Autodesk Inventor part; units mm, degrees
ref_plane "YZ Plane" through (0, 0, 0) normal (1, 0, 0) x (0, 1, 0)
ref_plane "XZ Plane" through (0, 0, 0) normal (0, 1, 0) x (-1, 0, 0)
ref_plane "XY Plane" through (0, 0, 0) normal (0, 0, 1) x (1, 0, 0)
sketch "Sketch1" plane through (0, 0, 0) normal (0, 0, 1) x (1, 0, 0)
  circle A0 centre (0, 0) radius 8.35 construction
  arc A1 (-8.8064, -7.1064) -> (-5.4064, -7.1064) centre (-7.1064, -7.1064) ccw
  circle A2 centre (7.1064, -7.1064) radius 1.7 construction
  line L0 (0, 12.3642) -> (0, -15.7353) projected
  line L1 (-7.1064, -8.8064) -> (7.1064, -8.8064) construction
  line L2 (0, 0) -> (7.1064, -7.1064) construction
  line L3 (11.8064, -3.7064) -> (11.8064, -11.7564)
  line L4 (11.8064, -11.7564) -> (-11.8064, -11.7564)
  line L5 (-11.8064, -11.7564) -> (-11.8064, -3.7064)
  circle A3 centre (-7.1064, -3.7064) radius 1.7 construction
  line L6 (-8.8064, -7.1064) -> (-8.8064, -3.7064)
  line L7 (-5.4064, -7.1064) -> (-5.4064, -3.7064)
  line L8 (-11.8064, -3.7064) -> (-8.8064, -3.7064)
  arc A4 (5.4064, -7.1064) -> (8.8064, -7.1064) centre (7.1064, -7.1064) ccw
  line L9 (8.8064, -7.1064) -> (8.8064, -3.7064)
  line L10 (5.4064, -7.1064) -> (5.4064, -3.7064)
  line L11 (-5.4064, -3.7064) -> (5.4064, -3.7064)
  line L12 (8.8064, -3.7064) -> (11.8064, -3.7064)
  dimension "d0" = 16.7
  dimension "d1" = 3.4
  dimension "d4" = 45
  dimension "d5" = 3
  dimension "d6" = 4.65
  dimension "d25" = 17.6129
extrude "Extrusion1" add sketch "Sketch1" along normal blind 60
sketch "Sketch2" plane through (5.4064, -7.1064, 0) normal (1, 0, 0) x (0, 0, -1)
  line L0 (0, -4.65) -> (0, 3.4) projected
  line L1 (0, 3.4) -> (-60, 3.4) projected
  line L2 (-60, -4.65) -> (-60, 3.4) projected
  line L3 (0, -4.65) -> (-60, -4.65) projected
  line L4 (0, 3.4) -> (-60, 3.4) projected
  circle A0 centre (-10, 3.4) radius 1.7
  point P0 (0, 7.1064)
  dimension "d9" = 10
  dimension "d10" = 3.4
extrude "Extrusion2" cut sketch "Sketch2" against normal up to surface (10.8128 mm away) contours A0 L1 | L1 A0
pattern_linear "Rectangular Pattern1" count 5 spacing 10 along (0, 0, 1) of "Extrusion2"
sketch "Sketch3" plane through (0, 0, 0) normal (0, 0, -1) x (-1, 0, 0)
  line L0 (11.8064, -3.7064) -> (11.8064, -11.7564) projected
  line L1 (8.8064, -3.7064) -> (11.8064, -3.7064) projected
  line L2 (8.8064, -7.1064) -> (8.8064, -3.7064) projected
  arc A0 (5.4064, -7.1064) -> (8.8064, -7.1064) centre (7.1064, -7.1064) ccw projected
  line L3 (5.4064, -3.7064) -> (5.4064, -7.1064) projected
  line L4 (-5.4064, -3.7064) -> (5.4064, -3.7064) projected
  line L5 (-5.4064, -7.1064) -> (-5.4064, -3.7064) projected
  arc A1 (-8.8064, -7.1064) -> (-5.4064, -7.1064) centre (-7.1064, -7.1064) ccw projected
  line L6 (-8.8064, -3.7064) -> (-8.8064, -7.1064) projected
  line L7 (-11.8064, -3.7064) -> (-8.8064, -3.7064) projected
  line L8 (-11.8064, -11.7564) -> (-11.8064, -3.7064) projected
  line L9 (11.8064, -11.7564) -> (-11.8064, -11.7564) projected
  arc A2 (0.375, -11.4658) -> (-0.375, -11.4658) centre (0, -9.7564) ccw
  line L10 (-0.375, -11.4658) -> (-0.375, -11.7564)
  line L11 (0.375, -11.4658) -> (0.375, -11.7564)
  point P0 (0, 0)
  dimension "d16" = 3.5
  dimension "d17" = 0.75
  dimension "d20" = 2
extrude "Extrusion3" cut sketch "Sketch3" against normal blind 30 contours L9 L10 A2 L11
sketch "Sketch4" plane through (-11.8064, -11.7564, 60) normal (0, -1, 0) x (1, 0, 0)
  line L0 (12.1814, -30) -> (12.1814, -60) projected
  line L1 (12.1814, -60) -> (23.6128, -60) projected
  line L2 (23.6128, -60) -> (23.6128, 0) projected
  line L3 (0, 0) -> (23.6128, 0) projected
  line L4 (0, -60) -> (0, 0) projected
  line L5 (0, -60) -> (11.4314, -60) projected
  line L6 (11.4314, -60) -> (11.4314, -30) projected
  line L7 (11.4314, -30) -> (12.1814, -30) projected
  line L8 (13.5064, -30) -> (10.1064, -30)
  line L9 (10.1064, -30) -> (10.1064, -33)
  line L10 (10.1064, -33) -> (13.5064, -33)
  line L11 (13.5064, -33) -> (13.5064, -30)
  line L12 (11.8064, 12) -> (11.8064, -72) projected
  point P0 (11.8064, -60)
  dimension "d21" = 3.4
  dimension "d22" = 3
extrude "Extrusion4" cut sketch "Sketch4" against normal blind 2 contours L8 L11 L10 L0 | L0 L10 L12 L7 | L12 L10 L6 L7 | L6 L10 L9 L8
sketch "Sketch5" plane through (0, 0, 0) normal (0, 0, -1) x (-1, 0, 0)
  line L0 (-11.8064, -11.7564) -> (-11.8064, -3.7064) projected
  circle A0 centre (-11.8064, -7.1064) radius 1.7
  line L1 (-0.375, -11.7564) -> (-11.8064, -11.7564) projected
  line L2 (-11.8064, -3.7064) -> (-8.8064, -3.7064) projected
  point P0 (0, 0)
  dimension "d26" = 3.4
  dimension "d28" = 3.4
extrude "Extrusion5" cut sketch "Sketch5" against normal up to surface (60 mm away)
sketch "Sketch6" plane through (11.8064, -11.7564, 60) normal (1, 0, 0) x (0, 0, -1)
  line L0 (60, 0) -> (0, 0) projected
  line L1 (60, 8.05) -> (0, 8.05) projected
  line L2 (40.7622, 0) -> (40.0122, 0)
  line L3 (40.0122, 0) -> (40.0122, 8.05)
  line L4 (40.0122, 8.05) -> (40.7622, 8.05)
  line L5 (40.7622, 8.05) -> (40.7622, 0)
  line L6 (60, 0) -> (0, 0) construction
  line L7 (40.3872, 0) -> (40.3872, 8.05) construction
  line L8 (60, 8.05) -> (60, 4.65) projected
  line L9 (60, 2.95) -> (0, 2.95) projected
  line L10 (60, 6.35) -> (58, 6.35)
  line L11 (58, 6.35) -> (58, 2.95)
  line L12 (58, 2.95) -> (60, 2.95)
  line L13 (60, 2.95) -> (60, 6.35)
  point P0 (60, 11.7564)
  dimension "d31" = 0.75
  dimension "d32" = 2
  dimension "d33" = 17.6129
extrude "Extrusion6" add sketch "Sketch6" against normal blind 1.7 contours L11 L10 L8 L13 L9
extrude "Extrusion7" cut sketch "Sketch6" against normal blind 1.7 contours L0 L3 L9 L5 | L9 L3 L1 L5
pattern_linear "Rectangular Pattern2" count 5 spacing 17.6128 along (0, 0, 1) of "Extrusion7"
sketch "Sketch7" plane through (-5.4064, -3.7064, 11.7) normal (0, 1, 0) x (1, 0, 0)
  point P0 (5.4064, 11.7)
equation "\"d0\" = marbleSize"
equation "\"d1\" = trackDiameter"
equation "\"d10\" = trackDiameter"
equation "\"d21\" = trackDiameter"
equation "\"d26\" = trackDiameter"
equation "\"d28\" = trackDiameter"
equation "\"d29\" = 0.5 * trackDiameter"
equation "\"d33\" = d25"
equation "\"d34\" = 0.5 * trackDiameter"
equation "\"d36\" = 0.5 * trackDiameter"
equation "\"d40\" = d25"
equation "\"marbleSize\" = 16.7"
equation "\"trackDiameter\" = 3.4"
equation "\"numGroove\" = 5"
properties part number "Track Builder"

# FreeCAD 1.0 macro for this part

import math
import FreeCAD as App
import Part
import Sketcher


def add_polygon(sketch, points):
    """Adds a closed chain of lines whose ends are joined by coincident constraints."""
    first, n = sketch.GeometryCount, len(points)
    for a, b in zip(points, points[1:] + points[:1]):
        sketch.addGeometry(Part.LineSegment(App.Vector(*a, 0), App.Vector(*b, 0)), False)
    for i in range(n):
        sketch.addConstraint(Sketcher.Constraint("Coincident", first + i, 2, first + (i + 1) % n, 1))

doc = App.newDocument("Part")
body = doc.addObject("PartDesign::Body", "Body")

# Sketch on XY plane
sketch1 = body.newObject("Sketcher::SketchObject", "Sketch")
sketch1.AttachmentSupport = (doc.getObject("XY_Plane"), [""])
sketch1.MapMode = "FlatFace"
sketch1.addGeometry([
    Part.ArcOfCircle(Part.Circle(App.Vector(-7.1, -7.1, 0), App.Vector(0, 0, 1), 1.7), math.radians(180), math.radians(360)),  # 0
    Part.LineSegment(App.Vector(-8.8, -7.1, 0), App.Vector(-8.8, -3.7, 0)),  # 1
    Part.LineSegment(App.Vector(-8.8, -3.7, 0), App.Vector(-11.8, -3.7, 0)),  # 2
    Part.LineSegment(App.Vector(-11.8, -3.7, 0), App.Vector(-11.8, -11.8, 0)),  # 3
    Part.LineSegment(App.Vector(-11.8, -11.8, 0), App.Vector(11.8, -11.8, 0)),  # 4
    Part.LineSegment(App.Vector(11.8, -11.8, 0), App.Vector(11.8, -3.7, 0)),  # 5
    Part.LineSegment(App.Vector(11.8, -3.7, 0), App.Vector(8.8, -3.7, 0)),  # 6
    Part.LineSegment(App.Vector(8.8, -3.7, 0), App.Vector(8.8, -7.1, 0)),  # 7
    Part.ArcOfCircle(Part.Circle(App.Vector(7.1, -7.1, 0), App.Vector(0, 0, 1), 1.7), math.radians(180), math.radians(360)),  # 8
    Part.LineSegment(App.Vector(5.4, -7.1, 0), App.Vector(5.4, -3.7, 0)),  # 9
    Part.LineSegment(App.Vector(5.4, -3.7, 0), App.Vector(-5.4, -3.7, 0)),  # 10
    Part.LineSegment(App.Vector(-5.4, -3.7, 0), App.Vector(-5.4, -7.1, 0)),  # 11
], False)
sketch1.addConstraint([
    Sketcher.Constraint("Tangent", 0, 1, 1, 1),
    Sketcher.Constraint("Coincident", 1, 2, 2, 1),
    Sketcher.Constraint("Coincident", 2, 2, 3, 1),
    Sketcher.Constraint("Coincident", 3, 2, 4, 1),
    Sketcher.Constraint("Coincident", 4, 2, 5, 1),
    Sketcher.Constraint("Coincident", 5, 2, 6, 1),
    Sketcher.Constraint("Coincident", 6, 2, 7, 1),
    Sketcher.Constraint("Tangent", 7, 2, 8, 2),
    Sketcher.Constraint("Tangent", 8, 1, 9, 1),
    Sketcher.Constraint("Coincident", 9, 2, 10, 1),
    Sketcher.Constraint("Coincident", 10, 2, 11, 1),
    Sketcher.Constraint("Tangent", 11, 2, 0, 2),
    Sketcher.Constraint("Vertical", 1),
    Sketcher.Constraint("Horizontal", 2),
    Sketcher.Constraint("Vertical", 3),
    Sketcher.Constraint("Horizontal", 4),
    Sketcher.Constraint("Vertical", 5),
    Sketcher.Constraint("Horizontal", 6),
    Sketcher.Constraint("Vertical", 7),
    Sketcher.Constraint("Vertical", 9),
    Sketcher.Constraint("Horizontal", 10),
    Sketcher.Constraint("Vertical", 11),
    Sketcher.Constraint("Equal", 0, 8),
    Sketcher.Constraint("Symmetric", 0, 3, 8, 3, -2),
    Sketcher.Constraint("Symmetric", 2, 2, 5, 2, -2),
    Sketcher.Constraint("Horizontal", 6, 2, 9, 2),
    Sketcher.Constraint("Radius", 0, 1.7),
    Sketcher.Constraint("DistanceX", 2, 2, 2, 1, 3.0),
    Sketcher.Constraint("DistanceY", 1, 1, 1, 2, 3.4),
    Sketcher.Constraint("DistanceY", 3, 2, 0, 1, 4.65),
    Sketcher.Constraint("DistanceX", 1, 2, 6, 2, 17.6128),
    Sketcher.Constraint("DistanceY", 0, 3, -1, 1, 7.1064),
])
pad1 = body.newObject("PartDesign::Pad", "Pad")
pad1.Profile = sketch1
pad1.Length = 60

# Sketch on YZ plane
sketch2 = body.newObject("Sketcher::SketchObject", "Sketch001")
sketch2.AttachmentSupport = (doc.getObject("YZ_Plane"), [""])
sketch2.MapMode = "FlatFace"
sketch2.AttachmentOffset = App.Placement(App.Vector(0, 0, 5.4064), App.Rotation())
sketch2.addGeometry(Part.Circle(App.Vector(-3.7, 10, 0), App.Vector(0, 0, 1), 1.7), False)
sketch2.addConstraint([
    Sketcher.Constraint("Diameter", 0, 3.4),
    Sketcher.Constraint("DistanceY", -1, 1, 0, 3, 10.0),
    Sketcher.Constraint("DistanceX", 0, 3, -1, 1, 3.7064),
])
pocket1 = body.newObject("PartDesign::Pocket", "Pocket")
pocket1.Profile = sketch2
pocket1.Length = 10.8128
doc.recompute()

linearpattern = body.newObject("PartDesign::LinearPattern", "LinearPattern")
linearpattern.Originals = [pocket1]
linearpattern.Direction = (doc.getObject("Z_Axis"), [""])
linearpattern.Mode = "offset"
linearpattern.Offset = 10
linearpattern.Occurrences = 5
body.Tip = linearpattern

# Sketch on XY plane
sketch3 = body.newObject("Sketcher::SketchObject", "Sketch002")
sketch3.AttachmentSupport = (doc.getObject("XY_Plane"), [""])
sketch3.MapMode = "FlatFace"
sketch3.addGeometry([
    Part.LineSegment(App.Vector(0.38, -11.76, 0), App.Vector(-0.38, -11.76, 0)),
    Part.LineSegment(App.Vector(-0.38, -11.76, 0), App.Vector(-0.38, -11.47, 0)),
    Part.ArcOfCircle(Part.Circle(App.Vector(0, -9.76, 0), App.Vector(0, 0, 1), 1.75), math.radians(-78), math.radians(258)),
    Part.LineSegment(App.Vector(0.38, -11.47, 0), App.Vector(0.38, -11.76, 0)),
], False)
sketch3.addConstraint([
    Sketcher.Constraint("Coincident", 0, 2, 1, 1),
    Sketcher.Constraint("Coincident", 1, 2, 2, 2),
    Sketcher.Constraint("Coincident", 2, 1, 3, 1),
    Sketcher.Constraint("Coincident", 3, 2, 0, 1),
    Sketcher.Constraint("Horizontal", 0),
    Sketcher.Constraint("Vertical", 1),
    Sketcher.Constraint("Vertical", 3),
    Sketcher.Constraint("Symmetric", 1, 2, 2, 1, -2),
    Sketcher.Constraint("Radius", 2, 1.75),
    Sketcher.Constraint("DistanceY", 0, 2, 2, 3, 2.0),
    Sketcher.Constraint("DistanceX", 0, 2, 0, 1, 0.75),
    Sketcher.Constraint("DistanceY", 2, 3, -1, 1, 9.7564),
])
pocket2 = body.newObject("PartDesign::Pocket", "Pocket001")
pocket2.Profile = sketch3
pocket2.Length = 30
pocket2.Reversed = True

# Sketch on XZ plane
sketch4 = body.newObject("Sketcher::SketchObject", "Sketch003")
sketch4.AttachmentSupport = (doc.getObject("XZ_Plane"), [""])
sketch4.MapMode = "FlatFace"
sketch4.AttachmentOffset = App.Placement(App.Vector(0, 0, 11.7564), App.Rotation())
add_polygon(sketch4, [(1.7, 30), (-1.7, 30), (-1.7, 27), (1.7, 27)])  # lines 0-3
sketch4.addConstraint([
    Sketcher.Constraint("Horizontal", 0),
    Sketcher.Constraint("Vertical", 1),
    Sketcher.Constraint("Horizontal", 2),
    Sketcher.Constraint("Vertical", 3),
    Sketcher.Constraint("DistanceY", 1, 2, 1, 1, 3.0),
    Sketcher.Constraint("DistanceX", 0, 2, 0, 1, 3.4),
    Sketcher.Constraint("DistanceY", -1, 1, 0, 2, 30.0),
    Sketcher.Constraint("DistanceX", 0, 2, -1, 1, 1.7),
])
pocket3 = body.newObject("PartDesign::Pocket", "Pocket002")
pocket3.Profile = sketch4
pocket3.Length = 2

# Sketch on XY plane
sketch5 = body.newObject("Sketcher::SketchObject", "Sketch004")
sketch5.AttachmentSupport = (doc.getObject("XY_Plane"), [""])
sketch5.MapMode = "FlatFace"
sketch5.addGeometry(Part.Circle(App.Vector(11.8, -7.1, 0), App.Vector(0, 0, 1), 1.7), False)
sketch5.addConstraint([
    Sketcher.Constraint("Diameter", 0, 3.4),
    Sketcher.Constraint("DistanceX", -1, 1, 0, 3, 11.8064),
    Sketcher.Constraint("DistanceY", 0, 3, -1, 1, 7.1064),
])
pocket4 = body.newObject("PartDesign::Pocket", "Pocket003")
pocket4.Profile = sketch5
pocket4.Length = 60
pocket4.Reversed = True

# Sketch on YZ plane
sketch6 = body.newObject("Sketcher::SketchObject", "Sketch005")
sketch6.AttachmentSupport = (doc.getObject("YZ_Plane"), [""])
sketch6.MapMode = "FlatFace"
sketch6.AttachmentOffset = App.Placement(App.Vector(0, 0, 11.8064), App.Rotation())
add_polygon(sketch6, [(-5.4, 2), (-8.8, 2), (-8.8, 0), (-5.4, 0)])  # lines 0-3
sketch6.addConstraint([
    Sketcher.Constraint("Horizontal", 0),
    Sketcher.Constraint("Vertical", 1),
    Sketcher.Constraint("Horizontal", 2),
    Sketcher.Constraint("Vertical", 3),
    Sketcher.Constraint("PointOnObject", 1, 2, -1),
    Sketcher.Constraint("DistanceY", 1, 2, 1, 1, 2.0),
    Sketcher.Constraint("DistanceX", 0, 2, 0, 1, 3.4),
    Sketcher.Constraint("DistanceX", 0, 2, -1, 1, 8.8064),
])
pad2 = body.newObject("PartDesign::Pad", "Pad001")
pad2.Profile = sketch6
pad2.Length = 1.7
pad2.Reversed = True

# Sketch on YZ plane
sketch7 = body.newObject("Sketcher::SketchObject", "Sketch006")
sketch7.AttachmentSupport = (doc.getObject("YZ_Plane"), [""])
sketch7.MapMode = "FlatFace"
sketch7.AttachmentOffset = App.Placement(App.Vector(0, 0, 11.8064), App.Rotation())
add_polygon(sketch7, [(-11.8, 20), (-11.8, 19.2), (-3.7, 19.2), (-3.7, 20)])  # lines 0-3
sketch7.addConstraint([
    Sketcher.Constraint("Vertical", 0),
    Sketcher.Constraint("Horizontal", 1),
    Sketcher.Constraint("Vertical", 2),
    Sketcher.Constraint("Horizontal", 3),
    Sketcher.Constraint("DistanceY", 0, 2, 0, 1, 0.75),
    Sketcher.Constraint("DistanceX", 1, 1, 1, 2, 8.05),
    Sketcher.Constraint("DistanceX", 0, 2, -1, 1, 11.7564),
    Sketcher.Constraint("DistanceY", -1, 1, 0, 2, 19.2378),
])
pocket5 = body.newObject("PartDesign::Pocket", "Pocket004")
pocket5.Profile = sketch7
pocket5.Length = 1.7
doc.recompute()

linearpattern2 = body.newObject("PartDesign::LinearPattern", "LinearPattern001")
linearpattern2.Originals = [pocket5]
linearpattern2.Direction = (doc.getObject("Z_Axis"), [""])
linearpattern2.Mode = "offset"
linearpattern2.Offset = 17.6128
linearpattern2.Occurrences = 5
body.Tip = linearpattern2

doc.recompute()
